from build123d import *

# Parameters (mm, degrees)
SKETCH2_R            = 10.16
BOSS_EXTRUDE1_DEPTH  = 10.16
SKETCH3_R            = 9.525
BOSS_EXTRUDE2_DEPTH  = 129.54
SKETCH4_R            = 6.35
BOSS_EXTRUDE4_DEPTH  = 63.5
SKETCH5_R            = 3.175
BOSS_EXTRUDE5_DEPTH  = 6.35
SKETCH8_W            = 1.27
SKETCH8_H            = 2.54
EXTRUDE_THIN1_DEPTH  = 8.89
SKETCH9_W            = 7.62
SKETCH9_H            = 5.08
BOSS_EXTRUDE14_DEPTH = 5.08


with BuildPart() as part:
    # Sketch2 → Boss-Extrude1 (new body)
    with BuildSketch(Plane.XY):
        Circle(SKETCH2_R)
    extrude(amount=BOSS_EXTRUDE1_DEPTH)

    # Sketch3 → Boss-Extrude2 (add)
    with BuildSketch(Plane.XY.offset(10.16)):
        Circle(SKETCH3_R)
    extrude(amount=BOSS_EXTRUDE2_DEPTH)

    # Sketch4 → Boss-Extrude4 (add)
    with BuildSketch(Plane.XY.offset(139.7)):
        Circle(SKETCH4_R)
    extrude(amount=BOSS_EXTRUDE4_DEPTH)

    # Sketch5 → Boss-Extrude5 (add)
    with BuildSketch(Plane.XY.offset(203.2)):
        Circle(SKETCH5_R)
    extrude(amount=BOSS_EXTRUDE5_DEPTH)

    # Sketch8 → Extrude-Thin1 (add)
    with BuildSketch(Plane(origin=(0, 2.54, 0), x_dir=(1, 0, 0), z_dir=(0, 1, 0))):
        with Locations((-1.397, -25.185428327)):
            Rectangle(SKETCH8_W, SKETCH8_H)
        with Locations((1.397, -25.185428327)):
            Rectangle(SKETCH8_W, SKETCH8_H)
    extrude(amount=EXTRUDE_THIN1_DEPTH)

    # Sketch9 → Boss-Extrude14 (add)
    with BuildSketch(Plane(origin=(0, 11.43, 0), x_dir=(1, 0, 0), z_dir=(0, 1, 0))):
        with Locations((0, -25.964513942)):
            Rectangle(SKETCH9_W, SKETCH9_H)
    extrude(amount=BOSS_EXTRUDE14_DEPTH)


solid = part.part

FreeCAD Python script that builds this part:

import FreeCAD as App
import Part
import Sketcher
from FreeCAD import Vector
Q = App.Units.Quantity

doc = App.newDocument("Part")
body = doc.addObject("PartDesign::Body", "Body")

sketch1 = doc.addObject("Sketcher::SketchObject", "Sketch")
body.addObject(sketch1)
sketch1.AttachmentSupport = (doc.XY_Plane, [""])
sketch1.MapMode = "FlatFace"
sketch1.addGeometry(Part.Circle(Vector(0, 0, 0), Vector(0, 0, 1), 10), False)
sketch1.addConstraint([
    Sketcher.Constraint("Coincident", 0, 3, -1, 1),
    Sketcher.Constraint("Diameter", 0, Q("0.8 in")),
])
pad1 = doc.addObject("PartDesign::Pad", "Pad")
body.addObject(pad1)
pad1.Profile = sketch1
pad1.Length = Q("0.4 in")

sketch2 = doc.addObject("Sketcher::SketchObject", "Sketch001")
body.addObject(sketch2)
sketch2.AttachmentSupport = (doc.XY_Plane, [""])
sketch2.MapMode = "FlatFace"
sketch2.AttachmentOffset = App.Placement(Vector(0, 0, 0.4 * 25.4), App.Rotation())
sketch2.addGeometry(Part.Circle(Vector(0, 0, 0), Vector(0, 0, 1), 10), False)
sketch2.addConstraint([
    Sketcher.Constraint("Coincident", 0, 3, -1, 1),
    Sketcher.Constraint("Diameter", 0, Q("0.75 in")),
])
pad2 = doc.addObject("PartDesign::Pad", "Pad001")
body.addObject(pad2)
pad2.Profile = sketch2
pad2.Length = Q("5.1 in")

sketch3 = doc.addObject("Sketcher::SketchObject", "Sketch002")
body.addObject(sketch3)
sketch3.AttachmentSupport = (doc.XY_Plane, [""])
sketch3.MapMode = "FlatFace"
sketch3.AttachmentOffset = App.Placement(Vector(0, 0, 5.5 * 25.4), App.Rotation())
sketch3.addGeometry(Part.Circle(Vector(0, 0, 0), Vector(0, 0, 1), 6), False)
sketch3.addConstraint([
    Sketcher.Constraint("Coincident", 0, 3, -1, 1),
    Sketcher.Constraint("Diameter", 0, Q("0.5 in")),
])
pad3 = doc.addObject("PartDesign::Pad", "Pad002")
body.addObject(pad3)
pad3.Profile = sketch3
pad3.Length = Q("2.5 in")

sketch4 = doc.addObject("Sketcher::SketchObject", "Sketch003")
body.addObject(sketch4)
sketch4.AttachmentSupport = (doc.XY_Plane, [""])
sketch4.MapMode = "FlatFace"
sketch4.AttachmentOffset = App.Placement(Vector(0, 0, 8 * 25.4), App.Rotation())
sketch4.addGeometry(Part.Circle(Vector(0, 0, 0), Vector(0, 0, 1), 3.2), False)
sketch4.addConstraint([
    Sketcher.Constraint("Coincident", 0, 3, -1, 1),
    Sketcher.Constraint("Diameter", 0, Q("0.25 in")),
])
pad4 = doc.addObject("PartDesign::Pad", "Pad003")
body.addObject(pad4)
pad4.Profile = sketch4
pad4.Length = Q("0.25 in")

sketch5 = doc.addObject("Sketcher::SketchObject", "Sketch004")
body.addObject(sketch5)
sketch5.AttachmentSupport = (doc.XZ_Plane, [""])
sketch5.MapMode = "FlatFace"
sketch5.AttachmentOffset = App.Placement(Vector(0, 0, -0.1 * 25.4), App.Rotation())
sketch5.addGeometry([
    Part.LineSegment(Vector(-2, 23.9, 0), Vector(-2, 26.5, 0)),
    Part.LineSegment(Vector(-2, 26.5, 0), Vector(-0.8, 26.5, 0)),
    Part.LineSegment(Vector(-0.8, 26.5, 0), Vector(-0.8, 23.9, 0)),
    Part.LineSegment(Vector(-0.8, 23.9, 0), Vector(-2, 23.9, 0)),
    Part.LineSegment(Vector(0.8, 23.9, 0), Vector(0.8, 26.5, 0)),
    Part.LineSegment(Vector(0.8, 26.5, 0), Vector(2, 26.5, 0)),
    Part.LineSegment(Vector(2, 26.5, 0), Vector(2, 23.9, 0)),
    Part.LineSegment(Vector(2, 23.9, 0), Vector(0.8, 23.9, 0)),
], False)
sketch5.addConstraint([
    Sketcher.Constraint("Coincident", 0, 2, 1, 1),
    Sketcher.Constraint("Coincident", 1, 2, 2, 1),
    Sketcher.Constraint("Coincident", 2, 2, 3, 1),
    Sketcher.Constraint("Coincident", 3, 2, 0, 1),
    Sketcher.Constraint("Coincident", 4, 2, 5, 1),
    Sketcher.Constraint("Coincident", 5, 2, 6, 1),
    Sketcher.Constraint("Coincident", 6, 2, 7, 1),
    Sketcher.Constraint("Coincident", 7, 2, 4, 1),
    Sketcher.Constraint("Vertical", 0),
    Sketcher.Constraint("Horizontal", 1),
    Sketcher.Constraint("Vertical", 2),
    Sketcher.Constraint("Horizontal", 3),
    Sketcher.Constraint("Vertical", 4),
    Sketcher.Constraint("Horizontal", 5),
    Sketcher.Constraint("Vertical", 6),
    Sketcher.Constraint("Horizontal", 7),
    Sketcher.Constraint("Symmetric", 1, 2, 4, 2, -2),
    Sketcher.Constraint("Symmetric", 3, 2, 6, 2, -2),
    Sketcher.Constraint("DistanceY", 0, 1, 0, 2, Q("0.1 in")),
    Sketcher.Constraint("DistanceX", 1, 1, 1, 2, Q("0.05 in")),
    Sketcher.Constraint("DistanceX", 0, 2, -1, 1, Q("0.08 in")),
    Sketcher.Constraint("DistanceY", -1, 1, 0, 2, Q("26.455428 mm")),
])
pad5 = doc.addObject("PartDesign::Pad", "Pad004")
body.addObject(pad5)
pad5.Profile = sketch5
pad5.Length = Q("0.35 in")
pad5.Reversed = True

sketch6 = doc.addObject("Sketcher::SketchObject", "Sketch005")
body.addObject(sketch6)
sketch6.AttachmentSupport = (doc.XZ_Plane, [""])
sketch6.MapMode = "FlatFace"
sketch6.AttachmentOffset = App.Placement(Vector(0, 0, -0.45 * 25.4), App.Rotation())
sketch6.addGeometry([
    Part.LineSegment(Vector(-4, 23, 0), Vector(-4, 29, 0)),
    Part.LineSegment(Vector(-4, 29, 0), Vector(4, 29, 0)),
    Part.LineSegment(Vector(4, 29, 0), Vector(4, 23, 0)),
    Part.LineSegment(Vector(4, 23, 0), Vector(-4, 23, 0)),
], False)
sketch6.addConstraint([
    Sketcher.Constraint("Coincident", 0, 2, 1, 1),
    Sketcher.Constraint("Coincident", 1, 2, 2, 1),
    Sketcher.Constraint("Coincident", 2, 2, 3, 1),
    Sketcher.Constraint("Coincident", 3, 2, 0, 1),
    Sketcher.Constraint("Vertical", 0),
    Sketcher.Constraint("Horizontal", 1),
    Sketcher.Constraint("Vertical", 2),
    Sketcher.Constraint("Horizontal", 3),
    Sketcher.Constraint("DistanceX", 1, 1, 1, 2, Q("0.3 in")),
    Sketcher.Constraint("DistanceY", 0, 1, 0, 2, Q("0.2 in")),
    Sketcher.Constraint("DistanceX", 0, 2, -1, 1, Q("0.15 in")),
    Sketcher.Constraint("DistanceY", -1, 1, 0, 2, Q("28.504514 mm")),
])
pad6 = doc.addObject("PartDesign::Pad", "Pad005")
body.addObject(pad6)
pad6.Profile = sketch6
pad6.Length = Q("0.2 in")
pad6.Reversed = True

doc.recompute()
